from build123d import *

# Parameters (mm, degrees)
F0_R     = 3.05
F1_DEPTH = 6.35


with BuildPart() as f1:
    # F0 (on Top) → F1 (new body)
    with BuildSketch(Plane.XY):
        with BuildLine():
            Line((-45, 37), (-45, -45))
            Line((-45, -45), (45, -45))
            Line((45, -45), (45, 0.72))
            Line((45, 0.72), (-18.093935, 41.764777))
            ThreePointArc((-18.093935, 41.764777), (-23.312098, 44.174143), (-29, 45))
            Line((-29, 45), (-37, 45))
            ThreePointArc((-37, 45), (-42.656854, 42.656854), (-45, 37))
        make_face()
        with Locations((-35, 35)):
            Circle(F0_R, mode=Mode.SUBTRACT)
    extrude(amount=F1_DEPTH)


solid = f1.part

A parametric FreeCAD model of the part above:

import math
import FreeCAD as App
import Part
import Sketcher
from FreeCAD import Vector

doc = App.newDocument("Part")
body = doc.addObject("PartDesign::Body", "Body")

sketch1 = body.newObject("Sketcher::SketchObject", "Sketch")
sketch1.AttachmentSupport = (doc.getObject("XY_Plane"), [""])
sketch1.MapMode = "FlatFace"
sketch1.addGeometry([
    Part.LineSegment(Vector(-45, 37, 0), Vector(-45, -45, 0)),
    Part.LineSegment(Vector(-45, -45, 0), Vector(45, -45, 0)),
    Part.LineSegment(Vector(45, -45, 0), Vector(45, 0.7, 0)),
    Part.LineSegment(Vector(45, 0.7, 0), Vector(-18.1, 41.8, 0)),
    Part.ArcOfCircle(Part.Circle(Vector(-29, 25, 0), Vector(0, 0, 1), 20), math.radians(57), math.radians(90)),
    Part.LineSegment(Vector(-29, 45, 0), Vector(-37, 45, 0)),
    Part.ArcOfCircle(Part.Circle(Vector(-37, 37, 0), Vector(0, 0, 1), 8), math.radians(90), math.radians(180)),
    Part.Circle(Vector(-35, 35, 0), Vector(0, 0, 1), 3),
], False)
sketch1.addConstraint([
    Sketcher.Constraint("Coincident", 0, 2, 1, 1),
    Sketcher.Constraint("Coincident", 1, 2, 2, 1),
    Sketcher.Constraint("Coincident", 2, 2, 3, 1),
    Sketcher.Constraint("Tangent", 3, 2, 4, 1),
    Sketcher.Constraint("Tangent", 4, 2, 5, 1),
    Sketcher.Constraint("Tangent", 5, 2, 6, 1),
    Sketcher.Constraint("Tangent", 6, 2, 0, 1),
    Sketcher.Constraint("Vertical", 0),
    Sketcher.Constraint("Horizontal", 1),
    Sketcher.Constraint("Vertical", 2),
    Sketcher.Constraint("Horizontal", 5),
    Sketcher.Constraint("Radius", 6, 8.000001),
    Sketcher.Constraint("Diameter", 7, 6.1),
    Sketcher.Constraint("DistanceX", 1, 1, 1, 2, 90.0),
    Sketcher.Constraint("DistanceX", 5, 2, 5, 1, 8.0),
    Sketcher.Constraint("DistanceY", 0, 2, 0, 1, 82.0),
    Sketcher.Constraint("DistanceX", 4, 3, -1, 1, 29.000002),
    Sketcher.Constraint("DistanceY", -1, 1, 6, 3, 36.999999),
    Sketcher.Constraint("DistanceX", 7, 3, -1, 1, 35.0),
    Sketcher.Constraint("DistanceY", -1, 1, 7, 3, 35.0),
    Sketcher.Constraint("DistanceY", 2, 1, 2, 2, 45.72),
    Sketcher.Constraint("Radius", 4, 20.000007),
])
pad1 = body.newObject("PartDesign::Pad", "Pad")
pad1.Profile = sketch1
pad1.Length = 6.35

doc.recompute()
